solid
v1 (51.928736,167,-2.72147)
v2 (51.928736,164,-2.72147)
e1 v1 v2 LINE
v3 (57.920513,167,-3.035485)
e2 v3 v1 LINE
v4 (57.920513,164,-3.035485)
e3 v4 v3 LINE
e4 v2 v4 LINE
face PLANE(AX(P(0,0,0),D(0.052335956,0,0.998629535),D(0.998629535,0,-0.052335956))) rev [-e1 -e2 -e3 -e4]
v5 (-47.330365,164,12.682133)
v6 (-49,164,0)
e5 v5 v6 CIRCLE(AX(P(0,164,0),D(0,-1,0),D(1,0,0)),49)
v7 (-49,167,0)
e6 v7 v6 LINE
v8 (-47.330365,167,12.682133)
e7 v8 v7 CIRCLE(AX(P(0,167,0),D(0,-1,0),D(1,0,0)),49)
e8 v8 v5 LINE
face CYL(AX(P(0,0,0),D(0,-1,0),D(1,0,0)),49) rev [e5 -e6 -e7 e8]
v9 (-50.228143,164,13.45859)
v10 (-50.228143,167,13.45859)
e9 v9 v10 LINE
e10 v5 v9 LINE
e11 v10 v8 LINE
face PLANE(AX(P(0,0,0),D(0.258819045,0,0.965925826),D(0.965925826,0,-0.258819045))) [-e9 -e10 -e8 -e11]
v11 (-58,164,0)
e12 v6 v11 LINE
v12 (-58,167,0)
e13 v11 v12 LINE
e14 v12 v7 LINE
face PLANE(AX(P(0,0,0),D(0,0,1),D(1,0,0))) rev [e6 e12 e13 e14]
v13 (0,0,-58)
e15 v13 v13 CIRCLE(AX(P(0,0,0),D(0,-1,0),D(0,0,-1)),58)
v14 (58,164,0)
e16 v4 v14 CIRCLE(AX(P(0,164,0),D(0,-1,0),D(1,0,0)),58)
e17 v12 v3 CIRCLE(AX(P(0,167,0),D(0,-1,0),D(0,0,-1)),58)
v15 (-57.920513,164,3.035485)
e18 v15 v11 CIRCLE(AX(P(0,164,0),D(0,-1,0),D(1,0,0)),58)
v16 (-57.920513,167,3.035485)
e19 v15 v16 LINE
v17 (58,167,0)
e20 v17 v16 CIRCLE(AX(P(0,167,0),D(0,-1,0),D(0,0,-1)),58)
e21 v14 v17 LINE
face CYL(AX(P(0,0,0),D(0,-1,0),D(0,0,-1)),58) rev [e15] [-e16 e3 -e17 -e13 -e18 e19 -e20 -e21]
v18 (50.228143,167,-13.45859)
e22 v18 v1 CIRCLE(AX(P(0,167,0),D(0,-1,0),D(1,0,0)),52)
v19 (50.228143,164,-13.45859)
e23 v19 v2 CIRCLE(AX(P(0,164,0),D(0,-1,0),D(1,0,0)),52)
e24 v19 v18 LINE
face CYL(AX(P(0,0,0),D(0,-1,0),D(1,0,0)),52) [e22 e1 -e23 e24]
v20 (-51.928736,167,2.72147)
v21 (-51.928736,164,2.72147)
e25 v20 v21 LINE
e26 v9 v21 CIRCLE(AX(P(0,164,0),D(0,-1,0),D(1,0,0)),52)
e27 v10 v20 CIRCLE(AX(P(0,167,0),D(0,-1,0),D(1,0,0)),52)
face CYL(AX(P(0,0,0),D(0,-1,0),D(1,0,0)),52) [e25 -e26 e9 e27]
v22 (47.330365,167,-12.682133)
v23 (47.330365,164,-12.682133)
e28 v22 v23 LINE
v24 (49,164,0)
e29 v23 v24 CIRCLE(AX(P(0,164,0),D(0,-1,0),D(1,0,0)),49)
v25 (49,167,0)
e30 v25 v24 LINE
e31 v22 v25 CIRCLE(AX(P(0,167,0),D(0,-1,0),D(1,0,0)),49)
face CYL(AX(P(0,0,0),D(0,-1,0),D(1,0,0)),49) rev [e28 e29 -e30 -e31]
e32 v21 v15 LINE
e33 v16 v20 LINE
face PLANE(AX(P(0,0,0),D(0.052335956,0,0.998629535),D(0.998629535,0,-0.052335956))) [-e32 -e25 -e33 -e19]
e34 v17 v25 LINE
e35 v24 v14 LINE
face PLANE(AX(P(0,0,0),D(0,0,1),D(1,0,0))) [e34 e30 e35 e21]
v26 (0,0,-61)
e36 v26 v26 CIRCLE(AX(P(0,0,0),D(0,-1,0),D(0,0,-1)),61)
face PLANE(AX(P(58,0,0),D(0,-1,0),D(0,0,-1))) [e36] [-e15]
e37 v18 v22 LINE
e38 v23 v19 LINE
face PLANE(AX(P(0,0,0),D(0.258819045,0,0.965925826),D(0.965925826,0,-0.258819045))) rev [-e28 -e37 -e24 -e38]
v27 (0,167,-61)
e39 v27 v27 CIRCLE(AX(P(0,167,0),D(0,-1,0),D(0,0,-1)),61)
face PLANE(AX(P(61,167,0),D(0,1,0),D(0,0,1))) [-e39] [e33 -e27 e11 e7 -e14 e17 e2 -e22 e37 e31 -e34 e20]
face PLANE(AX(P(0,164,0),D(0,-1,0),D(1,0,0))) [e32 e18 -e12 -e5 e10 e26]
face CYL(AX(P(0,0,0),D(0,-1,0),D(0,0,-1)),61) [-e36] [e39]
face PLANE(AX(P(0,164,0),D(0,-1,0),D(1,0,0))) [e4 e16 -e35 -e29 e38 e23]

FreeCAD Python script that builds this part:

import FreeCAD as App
import Part
import Sketcher

V = App.Vector
Q = App.Units.Quantity


def add_polygon(sketch, points):
    """Adds a closed chain of lines whose ends are joined by coincident constraints."""
    first, n = sketch.GeometryCount, len(points)
    for a, b in zip(points, points[1:] + points[:1]):
        sketch.addGeometry(Part.LineSegment(App.Vector(*a, 0), App.Vector(*b, 0)), False)
    for i in range(n):
        sketch.addConstraint(Sketcher.Constraint("Coincident", first + i, 2, first + (i + 1) % n, 1))

doc = App.newDocument("Part")
params = doc.addObject("Spreadsheet::Sheet", "Params")
for row, (alias, value) in enumerate([
    ("sketch1_width", "3 mm"),
    ("sketch1_height", "167 mm"),
    ("revolution_angle", "360 deg"),
    ("sketch2_width", "6 mm"),
    ("sketch2_height", "3 mm"),
    ("revolution2_angle", "3 deg"),
    ("sketch3_width", "3 mm"),
    ("revolution3_angle", "15 deg"),
], start=1):
    params.set(f"A{row}", alias)
    params.set(f"B{row}", "=" + value)
    params.setAlias(f"B{row}", alias)

body = doc.addObject("PartDesign::Body", "Body")

# Sketch on XY plane
sketch1 = body.newObject("Sketcher::SketchObject", "Sketch")
sketch1.AttachmentSupport = (doc.getObject("XY_Plane"), [""])
sketch1.MapMode = "FlatFace"
add_polygon(sketch1, [(58, 167), (58, 0), (61, 0), (61, 167)])  # lines 0-3
sketch1.addConstraint(Sketcher.Constraint("Vertical", 0))
sketch1.addConstraint(Sketcher.Constraint("Horizontal", 1))
sketch1.addConstraint(Sketcher.Constraint("Vertical", 2))
sketch1.addConstraint(Sketcher.Constraint("Horizontal", 3))
sketch1.addConstraint(Sketcher.Constraint("PointOnObject", 0, 2, -1))
sketch1.addConstraint(Sketcher.Constraint("DistanceX", 1, 1, 1, 2, Q("3 mm")))
sketch1.addConstraint(Sketcher.Constraint("DistanceY", 0, 2, 0, 1, Q("167 mm")))
sketch1.addConstraint(Sketcher.Constraint("DistanceX", -1, 1, 0, 2, Q("58 mm")))
sketch1.setExpression("Constraints[9]", "Params.sketch1_width")
sketch1.setExpression("Constraints[10]", "Params.sketch1_height")
revolution = body.newObject("PartDesign::Revolution", "Revolution")
revolution.Profile = sketch1
revolution.ReferenceAxis = (sketch1, ["V_Axis"])
revolution.setExpression("Angle", "Params.revolution_angle")

# Sketch on XY plane
sketch2 = body.newObject("Sketcher::SketchObject", "Sketch001")
sketch2.AttachmentSupport = (doc.getObject("XY_Plane"), [""])
sketch2.MapMode = "FlatFace"
add_polygon(sketch2, [(-58, 167), (-58, 164), (-52, 164), (-52, 167)])  # lines 0-3
add_polygon(sketch2, [(52, 167), (52, 164), (58, 164), (58, 167)])  # lines 4-7
sketch2.addConstraint(Sketcher.Constraint("Vertical", 0))
sketch2.addConstraint(Sketcher.Constraint("Horizontal", 1))
sketch2.addConstraint(Sketcher.Constraint("Vertical", 2))
sketch2.addConstraint(Sketcher.Constraint("Horizontal", 3))
sketch2.addConstraint(Sketcher.Constraint("Vertical", 4))
sketch2.addConstraint(Sketcher.Constraint("Horizontal", 5))
sketch2.addConstraint(Sketcher.Constraint("Vertical", 6))
sketch2.addConstraint(Sketcher.Constraint("Horizontal", 7))
sketch2.addConstraint(Sketcher.Constraint("Symmetric", 1, 2, 4, 2, -2))
sketch2.addConstraint(Sketcher.Constraint("Symmetric", 3, 2, 6, 2, -2))
sketch2.addConstraint(Sketcher.Constraint("DistanceX", 1, 1, 1, 2, Q("6 mm")))
sketch2.addConstraint(Sketcher.Constraint("DistanceY", 0, 2, 0, 1, Q("3 mm")))
sketch2.addConstraint(Sketcher.Constraint("DistanceX", 0, 2, -1, 1, Q("58 mm")))
sketch2.addConstraint(Sketcher.Constraint("DistanceY", -1, 1, 0, 2, Q("164 mm")))
sketch2.setExpression("Constraints[18]", "Params.sketch2_width")
sketch2.setExpression("Constraints[19]", "Params.sketch2_height")
revolution2 = body.newObject("PartDesign::Revolution", "Revolution001")
revolution2.Profile = sketch2
revolution2.ReferenceAxis = (sketch2, ["V_Axis"])
revolution2.setExpression("Angle", "Params.revolution2_angle")

# Sketch on XY plane
sketch3 = body.newObject("Sketcher::SketchObject", "Sketch002")
sketch3.AttachmentSupport = (doc.getObject("XY_Plane"), [""])
sketch3.MapMode = "FlatFace"
add_polygon(sketch3, [(-52, 167), (-52, 164), (-49, 164), (-49, 167)])  # lines 0-3
add_polygon(sketch3, [(49, 167), (49, 164), (52, 164), (52, 167)])  # lines 4-7
sketch3.addConstraint(Sketcher.Constraint("Vertical", 0))
sketch3.addConstraint(Sketcher.Constraint("Horizontal", 1))
sketch3.addConstraint(Sketcher.Constraint("Vertical", 2))
sketch3.addConstraint(Sketcher.Constraint("Horizontal", 3))
sketch3.addConstraint(Sketcher.Constraint("Vertical", 4))
sketch3.addConstraint(Sketcher.Constraint("Horizontal", 5))
sketch3.addConstraint(Sketcher.Constraint("Vertical", 6))
sketch3.addConstraint(Sketcher.Constraint("Horizontal", 7))
sketch3.addConstraint(Sketcher.Constraint("Symmetric", 1, 2, 4, 2, -2))
sketch3.addConstraint(Sketcher.Constraint("Symmetric", 3, 2, 6, 2, -2))
sketch3.addConstraint(Sketcher.Constraint("Equal", 7, 0))
sketch3.addConstraint(Sketcher.Constraint("DistanceX", 1, 1, 1, 2, Q("3 mm")))
sketch3.addConstraint(Sketcher.Constraint("DistanceX", 0, 2, -1, 1, Q("52 mm")))
sketch3.addConstraint(Sketcher.Constraint("DistanceY", -1, 1, 0, 2, Q("164 mm")))
sketch3.setExpression("Constraints[19]", "Params.sketch3_width")
revolution3 = body.newObject("PartDesign::Revolution", "Revolution002")
revolution3.Profile = sketch3
revolution3.ReferenceAxis = (sketch3, ["V_Axis"])
revolution3.setExpression("Angle", "Params.revolution3_angle")

doc.recompute()
